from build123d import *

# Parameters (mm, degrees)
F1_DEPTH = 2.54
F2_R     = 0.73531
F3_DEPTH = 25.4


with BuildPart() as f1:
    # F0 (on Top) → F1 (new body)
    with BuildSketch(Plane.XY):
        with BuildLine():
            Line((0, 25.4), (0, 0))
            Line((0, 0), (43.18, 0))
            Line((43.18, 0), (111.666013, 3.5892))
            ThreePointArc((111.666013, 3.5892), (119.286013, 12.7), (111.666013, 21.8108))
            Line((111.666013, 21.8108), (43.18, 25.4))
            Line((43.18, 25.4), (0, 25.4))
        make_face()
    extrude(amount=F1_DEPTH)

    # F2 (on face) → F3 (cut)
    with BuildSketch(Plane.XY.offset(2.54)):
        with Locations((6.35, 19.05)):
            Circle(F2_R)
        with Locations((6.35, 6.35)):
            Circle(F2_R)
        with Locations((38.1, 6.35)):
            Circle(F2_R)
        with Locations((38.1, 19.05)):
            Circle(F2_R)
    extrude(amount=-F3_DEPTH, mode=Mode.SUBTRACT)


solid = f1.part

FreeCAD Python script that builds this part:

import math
import FreeCAD as App
import Part
import Sketcher
from FreeCAD import Vector
Q = App.Units.Quantity

doc = App.newDocument("Part")
body = doc.addObject("PartDesign::Body", "Body")

# Sketch on XY plane
sketch1 = body.newObject("Sketcher::SketchObject", "Sketch")
sketch1.AttachmentSupport = (doc.getObject("XY_Plane"), [""])
sketch1.MapMode = "FlatFace"
sketch1.addGeometry(Part.LineSegment(Vector(0, 25, 0), Vector(0, 0, 0)), False)
sketch1.addGeometry(Part.LineSegment(Vector(0, 0, 0), Vector(43, 0, 0)), False)
sketch1.addGeometry(Part.LineSegment(Vector(43, 0, 0), Vector(112, 4, 0)), False)
sketch1.addGeometry(Part.ArcOfCircle(Part.Circle(Vector(110, 13, 0), Vector(0, 0, 1), 9), math.radians(-80), math.radians(80)), False)
sketch1.addGeometry(Part.LineSegment(Vector(112, 22, 0), Vector(43, 25, 0)), False)
sketch1.addGeometry(Part.LineSegment(Vector(43, 25, 0), Vector(0, 25, 0)), False)
sketch1.addConstraint(Sketcher.Constraint("Coincident", 0, 2, 1, 1))
sketch1.addConstraint(Sketcher.Constraint("Coincident", 1, 2, 2, 1))
sketch1.addConstraint(Sketcher.Constraint("Coincident", 2, 2, 3, 1))
sketch1.addConstraint(Sketcher.Constraint("Coincident", 3, 2, 4, 1))
sketch1.addConstraint(Sketcher.Constraint("Coincident", 4, 2, 5, 1))
sketch1.addConstraint(Sketcher.Constraint("Coincident", 5, 2, 0, 1))
sketch1.addConstraint(Sketcher.Constraint("Vertical", 0))
sketch1.addConstraint(Sketcher.Constraint("Horizontal", 1))
sketch1.addConstraint(Sketcher.Constraint("Horizontal", 5))
sketch1.addConstraint(Sketcher.Constraint("Coincident", 0, 2, -1, 1))
sketch1.addConstraint(Sketcher.Constraint("Vertical", 2, 2, 3, 2))
sketch1.addConstraint(Sketcher.Constraint("Vertical", 1, 2, 4, 2))
sketch1.addConstraint(Sketcher.Constraint("Equal", 2, 4))
sketch1.addConstraint(Sketcher.Constraint("DistanceY", 0, 2, 0, 1, Q("1 in")))
sketch1.addConstraint(Sketcher.Constraint("DistanceX", 1, 1, 1, 2, Q("1.7 in")))
sketch1.addConstraint(Sketcher.Constraint("Angle", 2, Q("3 deg")))
sketch1.addConstraint(Sketcher.Constraint("Distance", 2, Q("2.7 in")))
sketch1.addConstraint(Sketcher.Constraint("Radius", 3, Q("9.256632 mm")))
pad1 = body.newObject("PartDesign::Pad", "Pad")
pad1.Profile = sketch1
pad1.Length = Q("0.1 in")

# Sketch on XY plane
sketch2 = body.newObject("Sketcher::SketchObject", "Sketch001")
sketch2.AttachmentSupport = (doc.getObject("XY_Plane"), [""])
sketch2.MapMode = "FlatFace"
sketch2.AttachmentOffset = App.Placement(Vector(0, 0, 0.1 * 25.4), App.Rotation())
sketch2.addGeometry(Part.Circle(Vector(6.3, 19.1, 0), Vector(0, 0, 1), 0.7), False)
sketch2.addGeometry(Part.Circle(Vector(6.3, 6.3, 0), Vector(0, 0, 1), 0.7), False)
sketch2.addGeometry(Part.Circle(Vector(38.1, 6.3, 0), Vector(0, 0, 1), 0.7), False)
sketch2.addGeometry(Part.Circle(Vector(38.1, 19.1, 0), Vector(0, 0, 1), 0.7), False)
sketch2.addConstraint(Sketcher.Constraint("Equal", 0, 1))
sketch2.addConstraint(Sketcher.Constraint("Equal", 1, 2))
sketch2.addConstraint(Sketcher.Constraint("Equal", 2, 3))
sketch2.addConstraint(Sketcher.Constraint("Horizontal", 1, 3, 2, 3))
sketch2.addConstraint(Sketcher.Constraint("Horizontal", 0, 3, 3, 3))
sketch2.addConstraint(Sketcher.Constraint("Vertical", 0, 3, 1, 3))
sketch2.addConstraint(Sketcher.Constraint("Vertical", 2, 3, 3, 3))
sketch2.addConstraint(Sketcher.Constraint("DistanceX", -1, 1, 2, 3, Q("1.5 in")))
sketch2.addConstraint(Sketcher.Constraint("DistanceY", 1, 3, 0, 3, Q("0.5 in")))
sketch2.addConstraint(Sketcher.Constraint("DistanceX", -1, 1, 0, 3, Q("0.25 in")))
sketch2.addConstraint(Sketcher.Constraint("DistanceY", -1, 1, 0, 3, Q("0.75 in")))
sketch2.addConstraint(Sketcher.Constraint("Diameter", 0, Q("1.47062 mm")))
pocket1 = body.newObject("PartDesign::Pocket", "Pocket")
pocket1.Profile = sketch2
pocket1.Length = Q("1 in")

doc.recompute()
